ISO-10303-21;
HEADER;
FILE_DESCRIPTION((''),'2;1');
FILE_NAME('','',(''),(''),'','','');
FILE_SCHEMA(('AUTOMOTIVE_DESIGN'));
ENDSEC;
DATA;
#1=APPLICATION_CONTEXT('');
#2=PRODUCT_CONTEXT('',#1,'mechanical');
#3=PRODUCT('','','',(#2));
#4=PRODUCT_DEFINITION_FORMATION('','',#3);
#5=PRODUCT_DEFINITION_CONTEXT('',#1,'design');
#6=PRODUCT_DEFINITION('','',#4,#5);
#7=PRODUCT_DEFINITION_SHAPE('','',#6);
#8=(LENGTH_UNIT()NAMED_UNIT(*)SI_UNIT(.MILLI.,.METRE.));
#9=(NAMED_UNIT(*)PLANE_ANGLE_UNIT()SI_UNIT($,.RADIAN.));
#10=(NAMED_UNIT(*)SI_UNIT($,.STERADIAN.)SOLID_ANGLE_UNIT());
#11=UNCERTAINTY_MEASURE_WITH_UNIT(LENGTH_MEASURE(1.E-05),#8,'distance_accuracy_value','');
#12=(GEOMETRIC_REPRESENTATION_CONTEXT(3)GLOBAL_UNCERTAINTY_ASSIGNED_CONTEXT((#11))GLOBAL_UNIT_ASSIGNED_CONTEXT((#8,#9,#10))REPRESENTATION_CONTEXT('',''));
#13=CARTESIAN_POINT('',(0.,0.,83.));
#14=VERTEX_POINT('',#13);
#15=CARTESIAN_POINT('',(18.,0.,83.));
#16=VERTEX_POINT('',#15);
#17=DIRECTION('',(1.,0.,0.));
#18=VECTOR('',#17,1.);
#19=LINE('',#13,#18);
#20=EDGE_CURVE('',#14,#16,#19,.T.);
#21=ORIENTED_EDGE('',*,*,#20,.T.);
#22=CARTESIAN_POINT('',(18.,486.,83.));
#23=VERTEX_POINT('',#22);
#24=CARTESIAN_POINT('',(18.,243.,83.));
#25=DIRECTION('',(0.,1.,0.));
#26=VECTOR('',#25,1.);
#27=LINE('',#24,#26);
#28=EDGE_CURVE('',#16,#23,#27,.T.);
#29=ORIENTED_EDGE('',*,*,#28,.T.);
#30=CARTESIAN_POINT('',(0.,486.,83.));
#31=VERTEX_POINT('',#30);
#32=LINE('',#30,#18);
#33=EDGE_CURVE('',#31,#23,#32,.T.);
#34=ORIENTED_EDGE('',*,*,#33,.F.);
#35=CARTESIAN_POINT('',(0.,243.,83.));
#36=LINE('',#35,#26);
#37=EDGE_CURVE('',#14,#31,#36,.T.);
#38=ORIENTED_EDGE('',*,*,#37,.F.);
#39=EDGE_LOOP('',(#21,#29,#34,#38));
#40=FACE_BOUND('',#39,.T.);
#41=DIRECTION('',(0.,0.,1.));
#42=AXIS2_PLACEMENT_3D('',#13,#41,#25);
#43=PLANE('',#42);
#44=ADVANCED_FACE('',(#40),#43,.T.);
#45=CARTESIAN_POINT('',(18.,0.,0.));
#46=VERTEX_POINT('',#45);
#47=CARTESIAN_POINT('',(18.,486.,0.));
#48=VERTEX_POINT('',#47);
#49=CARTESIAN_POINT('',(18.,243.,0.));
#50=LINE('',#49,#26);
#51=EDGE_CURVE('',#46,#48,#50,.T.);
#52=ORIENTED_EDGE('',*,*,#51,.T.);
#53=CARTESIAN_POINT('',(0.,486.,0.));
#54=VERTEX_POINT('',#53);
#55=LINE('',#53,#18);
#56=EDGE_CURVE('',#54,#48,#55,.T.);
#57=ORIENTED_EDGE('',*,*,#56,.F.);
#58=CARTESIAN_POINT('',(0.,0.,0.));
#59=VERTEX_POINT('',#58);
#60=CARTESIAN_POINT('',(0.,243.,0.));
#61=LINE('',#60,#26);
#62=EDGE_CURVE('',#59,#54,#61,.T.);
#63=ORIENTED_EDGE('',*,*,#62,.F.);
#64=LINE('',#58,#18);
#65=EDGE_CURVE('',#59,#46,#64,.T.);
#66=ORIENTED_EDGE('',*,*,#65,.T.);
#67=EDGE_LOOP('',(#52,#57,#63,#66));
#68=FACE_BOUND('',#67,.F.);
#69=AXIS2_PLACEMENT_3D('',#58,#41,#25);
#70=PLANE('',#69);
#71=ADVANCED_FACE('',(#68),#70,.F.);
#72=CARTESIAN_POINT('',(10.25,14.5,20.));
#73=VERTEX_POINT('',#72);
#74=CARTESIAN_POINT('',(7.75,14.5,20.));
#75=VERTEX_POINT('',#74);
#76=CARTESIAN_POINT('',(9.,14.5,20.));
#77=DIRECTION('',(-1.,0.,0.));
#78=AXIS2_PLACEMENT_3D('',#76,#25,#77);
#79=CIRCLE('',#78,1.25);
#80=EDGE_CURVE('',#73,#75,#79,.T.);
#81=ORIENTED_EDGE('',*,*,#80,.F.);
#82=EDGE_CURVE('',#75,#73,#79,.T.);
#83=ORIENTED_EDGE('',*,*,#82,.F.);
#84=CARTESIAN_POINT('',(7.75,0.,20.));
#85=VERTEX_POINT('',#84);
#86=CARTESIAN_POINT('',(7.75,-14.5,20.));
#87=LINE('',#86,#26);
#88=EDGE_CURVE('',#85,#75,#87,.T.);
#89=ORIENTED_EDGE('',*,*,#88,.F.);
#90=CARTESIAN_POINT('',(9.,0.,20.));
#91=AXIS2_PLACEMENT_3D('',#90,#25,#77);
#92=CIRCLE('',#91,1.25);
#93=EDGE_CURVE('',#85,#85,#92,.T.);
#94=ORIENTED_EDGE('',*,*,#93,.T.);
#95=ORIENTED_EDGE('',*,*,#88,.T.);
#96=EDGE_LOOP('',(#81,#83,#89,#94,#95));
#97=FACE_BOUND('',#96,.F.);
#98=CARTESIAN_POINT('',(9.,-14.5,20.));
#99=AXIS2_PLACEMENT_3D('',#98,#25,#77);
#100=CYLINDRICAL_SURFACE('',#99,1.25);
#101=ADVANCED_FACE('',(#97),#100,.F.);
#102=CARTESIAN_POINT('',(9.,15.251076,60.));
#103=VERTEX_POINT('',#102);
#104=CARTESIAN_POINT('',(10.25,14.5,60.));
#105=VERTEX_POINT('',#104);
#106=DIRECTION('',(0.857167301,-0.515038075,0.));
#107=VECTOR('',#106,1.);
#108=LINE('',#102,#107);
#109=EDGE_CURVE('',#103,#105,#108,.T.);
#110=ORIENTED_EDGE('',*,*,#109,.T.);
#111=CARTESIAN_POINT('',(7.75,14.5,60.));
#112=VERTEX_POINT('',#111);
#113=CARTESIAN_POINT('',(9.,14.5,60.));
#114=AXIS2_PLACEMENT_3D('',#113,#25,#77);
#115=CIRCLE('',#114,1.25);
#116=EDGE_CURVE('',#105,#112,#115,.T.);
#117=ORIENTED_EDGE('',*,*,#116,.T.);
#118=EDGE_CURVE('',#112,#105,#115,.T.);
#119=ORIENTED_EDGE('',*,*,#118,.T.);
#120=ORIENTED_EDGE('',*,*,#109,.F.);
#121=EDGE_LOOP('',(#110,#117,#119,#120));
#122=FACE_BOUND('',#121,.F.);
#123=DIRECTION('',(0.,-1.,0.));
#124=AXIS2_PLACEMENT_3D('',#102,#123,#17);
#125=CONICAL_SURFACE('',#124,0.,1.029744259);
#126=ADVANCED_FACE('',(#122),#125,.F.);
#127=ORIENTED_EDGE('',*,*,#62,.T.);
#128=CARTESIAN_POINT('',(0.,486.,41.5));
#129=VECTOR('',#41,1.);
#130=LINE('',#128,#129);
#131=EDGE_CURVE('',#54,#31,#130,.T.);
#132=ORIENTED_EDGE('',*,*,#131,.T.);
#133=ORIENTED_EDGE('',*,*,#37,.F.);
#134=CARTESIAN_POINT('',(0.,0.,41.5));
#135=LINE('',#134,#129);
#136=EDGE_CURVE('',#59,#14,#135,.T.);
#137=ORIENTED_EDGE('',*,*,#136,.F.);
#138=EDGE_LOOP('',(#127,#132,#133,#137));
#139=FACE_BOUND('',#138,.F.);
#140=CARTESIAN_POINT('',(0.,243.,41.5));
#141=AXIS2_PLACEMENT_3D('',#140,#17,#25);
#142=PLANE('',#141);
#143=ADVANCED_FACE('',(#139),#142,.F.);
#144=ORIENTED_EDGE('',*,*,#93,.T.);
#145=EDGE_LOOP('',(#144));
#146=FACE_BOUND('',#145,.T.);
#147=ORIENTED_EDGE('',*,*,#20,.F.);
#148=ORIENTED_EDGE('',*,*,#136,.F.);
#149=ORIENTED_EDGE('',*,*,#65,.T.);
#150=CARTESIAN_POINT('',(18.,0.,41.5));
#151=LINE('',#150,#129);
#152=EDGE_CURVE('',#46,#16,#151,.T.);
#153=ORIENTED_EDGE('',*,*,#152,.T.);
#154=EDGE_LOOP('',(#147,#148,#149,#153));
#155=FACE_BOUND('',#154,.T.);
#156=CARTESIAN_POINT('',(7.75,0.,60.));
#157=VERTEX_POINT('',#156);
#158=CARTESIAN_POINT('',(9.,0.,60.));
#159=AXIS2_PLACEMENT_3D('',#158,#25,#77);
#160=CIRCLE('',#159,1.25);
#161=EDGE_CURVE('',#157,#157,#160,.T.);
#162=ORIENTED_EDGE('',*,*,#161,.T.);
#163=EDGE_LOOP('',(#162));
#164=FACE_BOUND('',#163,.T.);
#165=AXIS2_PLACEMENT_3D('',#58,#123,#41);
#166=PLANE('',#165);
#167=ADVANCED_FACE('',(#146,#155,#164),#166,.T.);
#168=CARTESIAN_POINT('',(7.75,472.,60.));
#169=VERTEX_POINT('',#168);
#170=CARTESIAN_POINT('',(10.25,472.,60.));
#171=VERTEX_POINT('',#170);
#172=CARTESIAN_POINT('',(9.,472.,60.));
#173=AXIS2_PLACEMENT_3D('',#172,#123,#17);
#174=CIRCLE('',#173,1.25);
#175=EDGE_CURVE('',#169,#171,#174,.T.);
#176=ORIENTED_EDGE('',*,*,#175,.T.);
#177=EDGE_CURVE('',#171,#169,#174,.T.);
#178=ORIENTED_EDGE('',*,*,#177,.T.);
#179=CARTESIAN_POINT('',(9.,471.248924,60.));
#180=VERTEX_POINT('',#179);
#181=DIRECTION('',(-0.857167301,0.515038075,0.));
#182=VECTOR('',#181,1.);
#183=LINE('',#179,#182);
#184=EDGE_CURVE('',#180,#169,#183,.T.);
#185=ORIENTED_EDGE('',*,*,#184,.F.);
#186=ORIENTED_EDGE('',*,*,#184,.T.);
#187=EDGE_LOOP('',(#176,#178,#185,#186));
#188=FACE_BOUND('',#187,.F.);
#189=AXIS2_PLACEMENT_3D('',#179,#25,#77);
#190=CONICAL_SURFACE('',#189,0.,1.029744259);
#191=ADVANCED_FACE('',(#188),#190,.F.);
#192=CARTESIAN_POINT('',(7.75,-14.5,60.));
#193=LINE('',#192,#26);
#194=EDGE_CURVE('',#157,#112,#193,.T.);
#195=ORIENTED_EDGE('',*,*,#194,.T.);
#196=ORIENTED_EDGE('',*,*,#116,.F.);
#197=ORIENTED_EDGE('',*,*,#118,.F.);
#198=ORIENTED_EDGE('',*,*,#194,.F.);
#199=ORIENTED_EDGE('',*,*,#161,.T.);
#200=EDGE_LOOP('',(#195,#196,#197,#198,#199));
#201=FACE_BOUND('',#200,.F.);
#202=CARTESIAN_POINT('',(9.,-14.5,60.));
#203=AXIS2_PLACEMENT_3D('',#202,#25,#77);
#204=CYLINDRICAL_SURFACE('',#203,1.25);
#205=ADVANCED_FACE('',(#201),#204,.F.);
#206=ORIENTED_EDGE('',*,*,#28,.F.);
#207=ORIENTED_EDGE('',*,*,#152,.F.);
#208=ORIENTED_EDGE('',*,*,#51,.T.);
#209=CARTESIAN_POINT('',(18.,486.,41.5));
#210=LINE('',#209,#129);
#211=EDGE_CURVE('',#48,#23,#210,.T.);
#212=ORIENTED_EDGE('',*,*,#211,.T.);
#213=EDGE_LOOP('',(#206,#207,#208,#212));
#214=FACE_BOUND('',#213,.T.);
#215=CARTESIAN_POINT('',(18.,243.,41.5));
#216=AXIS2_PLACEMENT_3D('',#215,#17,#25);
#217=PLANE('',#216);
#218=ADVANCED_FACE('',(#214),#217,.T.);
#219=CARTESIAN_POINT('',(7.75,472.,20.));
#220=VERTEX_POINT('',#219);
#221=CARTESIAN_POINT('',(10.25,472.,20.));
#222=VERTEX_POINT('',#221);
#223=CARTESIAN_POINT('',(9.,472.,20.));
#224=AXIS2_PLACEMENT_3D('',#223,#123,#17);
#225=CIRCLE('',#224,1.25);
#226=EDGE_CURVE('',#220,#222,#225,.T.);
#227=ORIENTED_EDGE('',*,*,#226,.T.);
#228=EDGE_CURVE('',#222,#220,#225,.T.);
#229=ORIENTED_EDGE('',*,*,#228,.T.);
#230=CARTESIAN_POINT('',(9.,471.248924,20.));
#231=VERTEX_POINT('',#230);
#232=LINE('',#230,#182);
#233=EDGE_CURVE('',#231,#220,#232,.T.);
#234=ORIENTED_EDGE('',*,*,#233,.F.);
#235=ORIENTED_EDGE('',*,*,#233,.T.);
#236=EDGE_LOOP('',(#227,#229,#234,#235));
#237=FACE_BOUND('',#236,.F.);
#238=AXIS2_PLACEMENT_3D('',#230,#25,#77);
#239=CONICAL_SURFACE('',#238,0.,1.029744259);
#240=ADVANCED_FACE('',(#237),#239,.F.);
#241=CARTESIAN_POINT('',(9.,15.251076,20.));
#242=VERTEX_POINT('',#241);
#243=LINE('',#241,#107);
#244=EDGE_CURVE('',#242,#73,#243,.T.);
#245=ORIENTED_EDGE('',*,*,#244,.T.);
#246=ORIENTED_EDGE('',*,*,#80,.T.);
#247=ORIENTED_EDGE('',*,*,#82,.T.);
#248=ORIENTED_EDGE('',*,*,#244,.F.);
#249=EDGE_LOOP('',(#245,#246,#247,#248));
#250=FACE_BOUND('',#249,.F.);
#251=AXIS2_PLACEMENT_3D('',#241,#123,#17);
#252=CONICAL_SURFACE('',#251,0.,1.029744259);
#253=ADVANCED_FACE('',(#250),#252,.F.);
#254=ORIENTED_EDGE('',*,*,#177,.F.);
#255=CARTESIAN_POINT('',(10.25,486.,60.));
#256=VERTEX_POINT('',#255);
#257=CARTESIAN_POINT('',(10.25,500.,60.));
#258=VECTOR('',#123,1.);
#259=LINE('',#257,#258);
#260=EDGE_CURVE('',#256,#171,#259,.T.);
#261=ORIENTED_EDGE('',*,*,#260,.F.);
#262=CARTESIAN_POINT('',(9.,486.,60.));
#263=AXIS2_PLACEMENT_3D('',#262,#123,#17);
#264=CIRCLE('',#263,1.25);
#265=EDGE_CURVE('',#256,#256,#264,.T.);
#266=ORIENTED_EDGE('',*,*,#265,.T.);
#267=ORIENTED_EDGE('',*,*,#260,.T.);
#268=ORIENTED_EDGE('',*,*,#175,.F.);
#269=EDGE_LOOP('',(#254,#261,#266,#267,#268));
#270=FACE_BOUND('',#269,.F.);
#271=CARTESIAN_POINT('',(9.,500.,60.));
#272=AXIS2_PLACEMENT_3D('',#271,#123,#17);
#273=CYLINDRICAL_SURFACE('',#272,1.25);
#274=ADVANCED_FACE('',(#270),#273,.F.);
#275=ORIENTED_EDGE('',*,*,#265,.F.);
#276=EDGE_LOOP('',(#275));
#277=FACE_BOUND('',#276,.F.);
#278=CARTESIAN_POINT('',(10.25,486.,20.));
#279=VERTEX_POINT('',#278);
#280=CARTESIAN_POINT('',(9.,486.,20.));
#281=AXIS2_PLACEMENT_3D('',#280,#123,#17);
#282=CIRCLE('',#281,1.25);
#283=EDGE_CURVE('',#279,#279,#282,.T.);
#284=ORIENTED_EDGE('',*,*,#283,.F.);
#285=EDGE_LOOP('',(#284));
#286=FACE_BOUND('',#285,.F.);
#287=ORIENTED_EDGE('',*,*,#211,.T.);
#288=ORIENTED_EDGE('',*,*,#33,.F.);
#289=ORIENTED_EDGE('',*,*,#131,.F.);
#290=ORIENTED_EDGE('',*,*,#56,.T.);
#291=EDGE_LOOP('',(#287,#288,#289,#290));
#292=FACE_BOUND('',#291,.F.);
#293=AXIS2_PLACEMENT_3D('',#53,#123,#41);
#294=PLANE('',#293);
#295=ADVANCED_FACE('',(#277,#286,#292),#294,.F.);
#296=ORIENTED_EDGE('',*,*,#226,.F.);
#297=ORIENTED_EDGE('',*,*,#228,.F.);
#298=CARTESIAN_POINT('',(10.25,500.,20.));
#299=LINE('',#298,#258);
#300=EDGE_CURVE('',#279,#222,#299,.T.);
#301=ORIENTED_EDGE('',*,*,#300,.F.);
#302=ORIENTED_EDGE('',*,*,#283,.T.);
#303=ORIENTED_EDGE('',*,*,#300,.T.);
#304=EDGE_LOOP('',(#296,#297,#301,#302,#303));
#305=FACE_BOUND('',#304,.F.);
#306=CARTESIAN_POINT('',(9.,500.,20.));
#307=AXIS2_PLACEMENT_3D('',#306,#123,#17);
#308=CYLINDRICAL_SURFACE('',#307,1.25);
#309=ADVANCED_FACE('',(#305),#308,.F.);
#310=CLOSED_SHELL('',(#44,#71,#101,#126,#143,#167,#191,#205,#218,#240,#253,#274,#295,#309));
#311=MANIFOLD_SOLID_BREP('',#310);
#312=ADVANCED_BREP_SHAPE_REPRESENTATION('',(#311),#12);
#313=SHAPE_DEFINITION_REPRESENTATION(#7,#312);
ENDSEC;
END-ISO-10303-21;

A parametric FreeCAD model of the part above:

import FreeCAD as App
import Part
import Sketcher

V = App.Vector


def add_polygon(sketch, points):
    """Adds a closed chain of lines whose ends are joined by coincident constraints."""
    first, n = sketch.GeometryCount, len(points)
    for a, b in zip(points, points[1:] + points[:1]):
        sketch.addGeometry(Part.LineSegment(App.Vector(*a, 0), App.Vector(*b, 0)), False)
    for i in range(n):
        sketch.addConstraint(Sketcher.Constraint("Coincident", first + i, 2, first + (i + 1) % n, 1))

doc = App.newDocument("Part")
body = doc.addObject("PartDesign::Body", "Body")

sketch1 = doc.addObject("Sketcher::SketchObject", "Sketch")
body.addObject(sketch1)
sketch1.AttachmentSupport = (doc.YZ_Plane, [""])
sketch1.MapMode = "FlatFace"
add_polygon(sketch1, [(0, 83), (0, 0), (486, 0), (486, 83)])
sketch1.addConstraint(Sketcher.Constraint("Vertical", 0))
sketch1.addConstraint(Sketcher.Constraint("Horizontal", 1))
sketch1.addConstraint(Sketcher.Constraint("Vertical", 2))
sketch1.addConstraint(Sketcher.Constraint("Horizontal", 3))
sketch1.addConstraint(Sketcher.Constraint("Coincident", 0, 2, -1, 1))
sketch1.addConstraint(Sketcher.Constraint("DistanceX", 1, 1, 1, 2, 486.0))
sketch1.addConstraint(Sketcher.Constraint("DistanceY", 0, 2, 0, 1, 83.0))
pad1 = doc.addObject("PartDesign::Pad", "Pad")
body.addObject(pad1)
pad1.Profile = sketch1
pad1.Length = 18

sketch2 = doc.addObject("Sketcher::SketchObject", "Sketch001")
body.addObject(sketch2)
sketch2.AttachmentSupport = (doc.XZ_Plane, [""])
sketch2.MapMode = "FlatFace"
sketch2.addGeometry(Part.Circle(V(9, 20, 0), V(0, 0, 1), 1.2), False)
sketch2.addGeometry(Part.Circle(V(9, 60, 0), V(0, 0, 1), 1.2), False)
sketch2.addConstraint(Sketcher.Constraint("Equal", 0, 1))
sketch2.addConstraint(Sketcher.Constraint("Vertical", 0, 3, 1, 3))
sketch2.addConstraint(Sketcher.Constraint("Diameter", 0, 2.5))
sketch2.addConstraint(Sketcher.Constraint("DistanceX", -1, 1, 0, 3, 9.0))
sketch2.addConstraint(Sketcher.Constraint("DistanceY", -1, 1, 0, 3, 20.0))
sketch2.addConstraint(Sketcher.Constraint("DistanceY", -1, 1, 1, 3, 60.0))
doc.recompute()
hole = doc.addObject("PartDesign::Hole", "Hole")
body.addObject(hole)
hole.Profile = sketch2
hole.ThreadType = "None"
hole.Diameter = 2.5
hole.DepthType = "Dimension"
hole.Depth = 14.5
hole.DrillPoint = "Angled"
hole.DrillPointAngle = 118

sketch3 = doc.addObject("Sketcher::SketchObject", "Sketch002")
body.addObject(sketch3)
sketch3.AttachmentSupport = (doc.XZ_Plane, [""])
sketch3.MapMode = "FlatFace"
sketch3.AttachmentOffset = App.Placement(V(0, 0, -486), App.Rotation())
sketch3.addGeometry(Part.Circle(V(9, 60, 0), V(0, 0, 1), 1.2), False)
sketch3.addGeometry(Part.Circle(V(9, 20, 0), V(0, 0, 1), 1.2), False)
sketch3.addConstraint(Sketcher.Constraint("Equal", 0, 1))
sketch3.addConstraint(Sketcher.Constraint("Vertical", 0, 3, 1, 3))
sketch3.addConstraint(Sketcher.Constraint("Diameter", 0, 2.5))
sketch3.addConstraint(Sketcher.Constraint("DistanceX", -1, 1, 0, 3, 9.0))
sketch3.addConstraint(Sketcher.Constraint("DistanceY", -1, 1, 0, 3, 60.0))
sketch3.addConstraint(Sketcher.Constraint("DistanceY", -1, 1, 1, 3, 20.0))
doc.recompute()
hole2 = doc.addObject("PartDesign::Hole", "Hole001")
body.addObject(hole2)
hole2.Profile = sketch3
hole2.ThreadType = "None"
hole2.Diameter = 2.5
hole2.DepthType = "Dimension"
hole2.Depth = 14
hole2.DrillPoint = "Angled"
hole2.DrillPointAngle = 118
hole2.Reversed = True

doc.recompute()
